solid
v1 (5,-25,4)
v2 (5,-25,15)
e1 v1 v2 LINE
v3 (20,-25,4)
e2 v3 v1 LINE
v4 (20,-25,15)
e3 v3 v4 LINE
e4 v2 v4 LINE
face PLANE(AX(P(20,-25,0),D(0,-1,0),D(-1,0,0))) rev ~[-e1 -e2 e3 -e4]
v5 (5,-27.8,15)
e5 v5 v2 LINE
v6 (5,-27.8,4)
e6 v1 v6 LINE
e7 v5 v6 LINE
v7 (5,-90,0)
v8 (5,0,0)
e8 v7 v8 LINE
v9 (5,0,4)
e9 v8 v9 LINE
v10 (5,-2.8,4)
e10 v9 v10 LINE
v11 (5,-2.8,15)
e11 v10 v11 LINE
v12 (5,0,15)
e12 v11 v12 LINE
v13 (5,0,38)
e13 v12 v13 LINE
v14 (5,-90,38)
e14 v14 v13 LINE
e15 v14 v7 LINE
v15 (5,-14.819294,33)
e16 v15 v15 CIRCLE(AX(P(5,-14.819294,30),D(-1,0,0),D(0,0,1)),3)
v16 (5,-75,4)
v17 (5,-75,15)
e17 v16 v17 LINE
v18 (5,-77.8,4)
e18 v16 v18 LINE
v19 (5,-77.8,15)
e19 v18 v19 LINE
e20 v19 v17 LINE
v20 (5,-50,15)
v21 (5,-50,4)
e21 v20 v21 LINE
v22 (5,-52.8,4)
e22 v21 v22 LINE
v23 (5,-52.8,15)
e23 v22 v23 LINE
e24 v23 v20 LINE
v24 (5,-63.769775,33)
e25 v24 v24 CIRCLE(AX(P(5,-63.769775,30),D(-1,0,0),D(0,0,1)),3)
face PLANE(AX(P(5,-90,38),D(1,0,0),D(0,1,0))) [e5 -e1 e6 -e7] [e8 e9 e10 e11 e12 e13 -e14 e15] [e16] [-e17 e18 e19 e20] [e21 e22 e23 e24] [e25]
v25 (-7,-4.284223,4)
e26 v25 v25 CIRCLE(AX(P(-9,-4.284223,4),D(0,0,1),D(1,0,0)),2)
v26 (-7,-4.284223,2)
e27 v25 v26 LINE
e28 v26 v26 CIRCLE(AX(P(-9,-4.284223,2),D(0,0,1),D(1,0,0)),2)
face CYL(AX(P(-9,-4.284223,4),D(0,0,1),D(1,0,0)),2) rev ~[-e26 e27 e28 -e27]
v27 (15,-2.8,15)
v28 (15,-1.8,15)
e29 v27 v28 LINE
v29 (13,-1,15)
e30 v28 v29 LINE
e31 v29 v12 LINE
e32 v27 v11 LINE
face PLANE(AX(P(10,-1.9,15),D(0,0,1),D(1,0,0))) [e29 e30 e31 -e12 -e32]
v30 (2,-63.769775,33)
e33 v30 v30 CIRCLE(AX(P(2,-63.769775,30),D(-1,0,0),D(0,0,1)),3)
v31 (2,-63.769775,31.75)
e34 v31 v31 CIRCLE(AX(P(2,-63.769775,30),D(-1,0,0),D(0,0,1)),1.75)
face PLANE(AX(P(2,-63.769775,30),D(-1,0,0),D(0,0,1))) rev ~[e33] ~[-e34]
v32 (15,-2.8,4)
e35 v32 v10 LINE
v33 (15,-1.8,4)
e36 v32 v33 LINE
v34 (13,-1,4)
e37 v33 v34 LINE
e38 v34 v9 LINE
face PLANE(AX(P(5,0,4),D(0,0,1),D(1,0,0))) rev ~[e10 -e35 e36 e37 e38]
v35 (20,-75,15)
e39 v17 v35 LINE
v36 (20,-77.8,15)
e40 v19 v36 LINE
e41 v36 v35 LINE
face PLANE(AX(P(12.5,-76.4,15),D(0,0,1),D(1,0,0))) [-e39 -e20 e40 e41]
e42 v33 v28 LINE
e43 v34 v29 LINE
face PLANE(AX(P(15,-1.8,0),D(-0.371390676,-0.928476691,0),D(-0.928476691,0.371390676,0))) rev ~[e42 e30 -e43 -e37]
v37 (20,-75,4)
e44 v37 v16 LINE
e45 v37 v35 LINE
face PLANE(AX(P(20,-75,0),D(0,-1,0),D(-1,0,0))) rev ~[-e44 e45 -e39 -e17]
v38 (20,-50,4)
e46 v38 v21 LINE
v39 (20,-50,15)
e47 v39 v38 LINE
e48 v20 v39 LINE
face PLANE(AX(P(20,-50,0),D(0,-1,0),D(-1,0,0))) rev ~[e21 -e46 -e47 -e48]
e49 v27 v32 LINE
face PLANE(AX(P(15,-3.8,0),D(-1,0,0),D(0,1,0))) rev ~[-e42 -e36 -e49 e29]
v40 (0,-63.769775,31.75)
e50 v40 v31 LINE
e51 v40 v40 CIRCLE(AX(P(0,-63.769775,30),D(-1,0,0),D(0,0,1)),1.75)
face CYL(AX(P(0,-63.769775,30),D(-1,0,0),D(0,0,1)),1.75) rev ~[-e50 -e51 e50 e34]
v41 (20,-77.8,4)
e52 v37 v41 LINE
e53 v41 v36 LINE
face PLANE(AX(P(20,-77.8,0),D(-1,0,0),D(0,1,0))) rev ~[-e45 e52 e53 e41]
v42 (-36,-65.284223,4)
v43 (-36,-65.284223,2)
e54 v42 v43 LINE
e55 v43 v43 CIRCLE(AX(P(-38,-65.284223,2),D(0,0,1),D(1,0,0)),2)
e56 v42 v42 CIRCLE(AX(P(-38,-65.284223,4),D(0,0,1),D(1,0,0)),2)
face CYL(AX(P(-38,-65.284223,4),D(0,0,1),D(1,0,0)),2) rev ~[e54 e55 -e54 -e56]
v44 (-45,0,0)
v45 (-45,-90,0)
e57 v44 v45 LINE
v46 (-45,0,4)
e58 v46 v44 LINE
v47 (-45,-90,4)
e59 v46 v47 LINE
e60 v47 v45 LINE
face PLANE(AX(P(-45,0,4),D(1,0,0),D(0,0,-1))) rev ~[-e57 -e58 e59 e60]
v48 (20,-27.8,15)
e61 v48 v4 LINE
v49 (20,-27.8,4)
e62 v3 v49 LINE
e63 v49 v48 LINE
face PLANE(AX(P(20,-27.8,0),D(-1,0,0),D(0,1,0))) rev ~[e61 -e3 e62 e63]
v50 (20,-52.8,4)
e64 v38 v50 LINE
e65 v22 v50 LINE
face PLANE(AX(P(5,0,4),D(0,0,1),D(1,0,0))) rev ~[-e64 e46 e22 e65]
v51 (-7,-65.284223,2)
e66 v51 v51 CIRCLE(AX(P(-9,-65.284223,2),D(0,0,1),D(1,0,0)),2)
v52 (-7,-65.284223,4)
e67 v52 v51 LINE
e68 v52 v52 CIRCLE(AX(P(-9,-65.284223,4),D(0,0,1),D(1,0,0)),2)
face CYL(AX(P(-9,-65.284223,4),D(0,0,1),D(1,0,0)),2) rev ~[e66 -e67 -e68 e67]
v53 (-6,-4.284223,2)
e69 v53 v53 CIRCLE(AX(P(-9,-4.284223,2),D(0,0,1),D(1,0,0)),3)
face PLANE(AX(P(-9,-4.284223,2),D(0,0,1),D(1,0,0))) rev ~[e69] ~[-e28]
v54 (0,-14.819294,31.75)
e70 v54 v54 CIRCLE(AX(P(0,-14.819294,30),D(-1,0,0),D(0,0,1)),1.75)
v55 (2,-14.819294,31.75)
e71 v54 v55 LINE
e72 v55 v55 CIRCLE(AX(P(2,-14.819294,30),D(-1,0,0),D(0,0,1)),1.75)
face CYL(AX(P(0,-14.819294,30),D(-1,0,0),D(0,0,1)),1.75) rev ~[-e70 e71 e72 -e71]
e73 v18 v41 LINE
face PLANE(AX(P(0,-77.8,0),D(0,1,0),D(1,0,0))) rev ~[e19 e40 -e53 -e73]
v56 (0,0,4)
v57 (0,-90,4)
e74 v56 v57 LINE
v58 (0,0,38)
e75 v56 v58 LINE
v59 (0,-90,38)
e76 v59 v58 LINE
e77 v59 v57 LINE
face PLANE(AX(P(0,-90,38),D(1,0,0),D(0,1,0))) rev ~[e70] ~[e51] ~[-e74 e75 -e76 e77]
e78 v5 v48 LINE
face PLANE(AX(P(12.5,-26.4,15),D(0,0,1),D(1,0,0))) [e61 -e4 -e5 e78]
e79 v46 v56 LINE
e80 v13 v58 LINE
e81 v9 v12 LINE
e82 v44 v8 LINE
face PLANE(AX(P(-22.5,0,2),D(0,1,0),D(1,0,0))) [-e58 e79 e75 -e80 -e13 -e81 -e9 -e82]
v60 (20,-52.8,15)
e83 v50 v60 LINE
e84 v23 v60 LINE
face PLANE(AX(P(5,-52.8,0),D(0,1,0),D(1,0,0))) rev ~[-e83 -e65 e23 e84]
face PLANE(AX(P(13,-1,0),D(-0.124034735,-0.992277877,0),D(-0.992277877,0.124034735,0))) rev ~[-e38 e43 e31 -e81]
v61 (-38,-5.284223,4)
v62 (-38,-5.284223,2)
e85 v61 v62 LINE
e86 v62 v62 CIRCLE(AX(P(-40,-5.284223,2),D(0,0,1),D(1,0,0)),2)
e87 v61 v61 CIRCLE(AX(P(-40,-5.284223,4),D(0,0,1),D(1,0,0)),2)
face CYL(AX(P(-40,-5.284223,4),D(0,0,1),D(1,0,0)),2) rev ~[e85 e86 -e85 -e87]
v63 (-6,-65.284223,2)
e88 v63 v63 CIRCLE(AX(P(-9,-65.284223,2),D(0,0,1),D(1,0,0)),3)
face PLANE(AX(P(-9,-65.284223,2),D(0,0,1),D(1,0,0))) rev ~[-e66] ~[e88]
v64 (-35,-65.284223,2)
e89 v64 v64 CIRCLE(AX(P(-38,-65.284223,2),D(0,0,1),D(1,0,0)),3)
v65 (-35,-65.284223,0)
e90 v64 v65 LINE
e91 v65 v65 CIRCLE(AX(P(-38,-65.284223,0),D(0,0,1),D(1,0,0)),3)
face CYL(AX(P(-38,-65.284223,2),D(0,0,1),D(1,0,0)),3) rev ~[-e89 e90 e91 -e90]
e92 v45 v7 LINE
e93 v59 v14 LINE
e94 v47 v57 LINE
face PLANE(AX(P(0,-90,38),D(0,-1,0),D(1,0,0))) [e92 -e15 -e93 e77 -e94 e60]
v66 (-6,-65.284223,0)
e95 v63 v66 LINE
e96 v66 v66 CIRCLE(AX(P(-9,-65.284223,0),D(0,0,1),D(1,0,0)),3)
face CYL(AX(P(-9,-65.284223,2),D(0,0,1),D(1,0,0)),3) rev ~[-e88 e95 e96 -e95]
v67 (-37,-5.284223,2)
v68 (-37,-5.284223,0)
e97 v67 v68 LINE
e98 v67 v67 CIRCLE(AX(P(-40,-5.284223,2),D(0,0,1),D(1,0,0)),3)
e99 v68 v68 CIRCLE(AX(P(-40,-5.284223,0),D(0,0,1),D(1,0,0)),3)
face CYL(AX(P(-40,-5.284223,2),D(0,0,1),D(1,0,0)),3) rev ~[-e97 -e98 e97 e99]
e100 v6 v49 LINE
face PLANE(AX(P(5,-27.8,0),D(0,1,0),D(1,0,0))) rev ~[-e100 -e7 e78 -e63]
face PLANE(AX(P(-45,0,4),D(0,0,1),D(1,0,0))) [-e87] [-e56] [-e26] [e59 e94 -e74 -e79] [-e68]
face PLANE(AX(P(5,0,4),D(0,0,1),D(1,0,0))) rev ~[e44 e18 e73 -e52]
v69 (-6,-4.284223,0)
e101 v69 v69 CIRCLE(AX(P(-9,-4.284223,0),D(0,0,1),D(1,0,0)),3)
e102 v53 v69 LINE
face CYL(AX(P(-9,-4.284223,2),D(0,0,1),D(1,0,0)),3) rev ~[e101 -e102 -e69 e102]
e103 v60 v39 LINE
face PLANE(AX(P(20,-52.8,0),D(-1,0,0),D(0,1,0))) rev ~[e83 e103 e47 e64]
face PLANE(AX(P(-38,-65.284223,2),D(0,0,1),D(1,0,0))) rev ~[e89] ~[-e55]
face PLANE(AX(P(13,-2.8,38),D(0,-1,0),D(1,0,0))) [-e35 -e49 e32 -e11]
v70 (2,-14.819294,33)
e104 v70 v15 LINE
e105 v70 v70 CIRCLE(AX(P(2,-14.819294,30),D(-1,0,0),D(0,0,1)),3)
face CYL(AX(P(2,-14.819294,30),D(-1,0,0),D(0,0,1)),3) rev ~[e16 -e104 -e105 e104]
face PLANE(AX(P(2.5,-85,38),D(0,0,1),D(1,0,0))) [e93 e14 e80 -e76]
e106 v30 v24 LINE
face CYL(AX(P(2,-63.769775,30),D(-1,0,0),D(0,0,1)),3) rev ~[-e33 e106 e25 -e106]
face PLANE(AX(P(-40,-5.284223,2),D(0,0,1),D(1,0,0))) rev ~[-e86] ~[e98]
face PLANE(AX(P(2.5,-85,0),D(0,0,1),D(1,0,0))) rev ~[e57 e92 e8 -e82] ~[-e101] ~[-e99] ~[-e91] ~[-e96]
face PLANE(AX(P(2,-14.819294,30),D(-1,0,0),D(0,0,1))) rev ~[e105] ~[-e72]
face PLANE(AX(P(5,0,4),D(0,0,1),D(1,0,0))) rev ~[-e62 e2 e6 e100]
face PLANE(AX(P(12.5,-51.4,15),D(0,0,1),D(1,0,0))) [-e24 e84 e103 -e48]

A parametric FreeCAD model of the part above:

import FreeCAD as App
import Part
import Sketcher
Q = App.Units.Quantity

doc = App.newDocument("Part")
body = doc.addObject("PartDesign::Body", "Body")

sketch1 = body.newObject("Sketcher::SketchObject", "Sketch")
sketch1.AttachmentSupport = (doc.getObject("XY_Plane"), [""])
sketch1.MapMode = "FlatFace"
sketch1.addGeometry([
    Part.LineSegment(App.Vector(15, -3.8, 0), App.Vector(15, -1.8, 0)),
    Part.LineSegment(App.Vector(15, -1.8, 0), App.Vector(13, -1, 0)),
    Part.LineSegment(App.Vector(13, -1, 0), App.Vector(13, -3.8, 0)),
    Part.LineSegment(App.Vector(13, -3.8, 0), App.Vector(15, -3.8, 0)),
], False)
sketch1.addConstraint([
    Sketcher.Constraint("Coincident", 0, 2, 1, 1),
    Sketcher.Constraint("Coincident", 1, 2, 2, 1),
    Sketcher.Constraint("Coincident", 2, 2, 3, 1),
    Sketcher.Constraint("Coincident", 3, 2, 0, 1),
    Sketcher.Constraint("Vertical", 0),
    Sketcher.Constraint("Vertical", 2),
    Sketcher.Constraint("Horizontal", 3),
    Sketcher.Constraint("Equal", 3, 0),
    Sketcher.Constraint("DistanceX", 3, 1, 3, 2, Q("2 mm")),
    Sketcher.Constraint("DistanceY", 2, 2, 2, 1, Q("2.8 mm")),
    Sketcher.Constraint("DistanceX", -1, 1, 0, 2, Q("15 mm")),
    Sketcher.Constraint("DistanceY", 1, 2, -1, 1, Q("1 mm")),
])
pad1 = body.newObject("PartDesign::Pad", "Pad")
pad1.Profile = sketch1
pad1.Length = 38
body2 = doc.addObject("PartDesign::Body", "Body001")

sketch2 = body2.newObject("Sketcher::SketchObject", "Sketch001")
sketch2.AttachmentSupport = (doc.getObject("XY_Plane001"), [""])
sketch2.MapMode = "FlatFace"
sketch2.addGeometry([
    Part.LineSegment(App.Vector(5, -75, 0), App.Vector(5, -52.8, 0)),
    Part.LineSegment(App.Vector(5, -52.8, 0), App.Vector(20, -52.8, 0)),
    Part.LineSegment(App.Vector(20, -52.8, 0), App.Vector(20, -50, 0)),
    Part.LineSegment(App.Vector(20, -50, 0), App.Vector(5, -50, 0)),
    Part.LineSegment(App.Vector(5, -50, 0), App.Vector(5, -27.8, 0)),
    Part.LineSegment(App.Vector(5, -27.8, 0), App.Vector(20, -27.8, 0)),
    Part.LineSegment(App.Vector(20, -27.8, 0), App.Vector(20, -25, 0)),
    Part.LineSegment(App.Vector(20, -25, 0), App.Vector(5, -25, 0)),
    Part.LineSegment(App.Vector(5, -25, 0), App.Vector(5, 0, 0)),
    Part.LineSegment(App.Vector(5, 0, 0), App.Vector(0, 0, 0)),
    Part.LineSegment(App.Vector(0, 0, 0), App.Vector(0, -77.8, 0)),
    Part.LineSegment(App.Vector(0, -77.8, 0), App.Vector(20, -77.8, 0)),
    Part.LineSegment(App.Vector(20, -77.8, 0), App.Vector(20, -75, 0)),
    Part.LineSegment(App.Vector(20, -75, 0), App.Vector(5, -75, 0)),
], False)
sketch2.addConstraint([
    Sketcher.Constraint("Coincident", 0, 2, 1, 1),
    Sketcher.Constraint("Coincident", 1, 2, 2, 1),
    Sketcher.Constraint("Coincident", 2, 2, 3, 1),
    Sketcher.Constraint("Coincident", 3, 2, 4, 1),
    Sketcher.Constraint("Coincident", 4, 2, 5, 1),
    Sketcher.Constraint("Coincident", 5, 2, 6, 1),
    Sketcher.Constraint("Coincident", 6, 2, 7, 1),
    Sketcher.Constraint("Coincident", 7, 2, 8, 1),
    Sketcher.Constraint("Coincident", 8, 2, 9, 1),
    Sketcher.Constraint("Coincident", 9, 2, 10, 1),
    Sketcher.Constraint("Coincident", 10, 2, 11, 1),
    Sketcher.Constraint("Coincident", 11, 2, 12, 1),
    Sketcher.Constraint("Coincident", 12, 2, 13, 1),
    Sketcher.Constraint("Coincident", 13, 2, 0, 1),
    Sketcher.Constraint("Vertical", 0),
    Sketcher.Constraint("Horizontal", 1),
    Sketcher.Constraint("Vertical", 2),
    Sketcher.Constraint("Horizontal", 3),
    Sketcher.Constraint("Vertical", 4),
    Sketcher.Constraint("Horizontal", 5),
    Sketcher.Constraint("Vertical", 6),
    Sketcher.Constraint("Horizontal", 7),
    Sketcher.Constraint("Vertical", 8),
    Sketcher.Constraint("Horizontal", 9),
    Sketcher.Constraint("Vertical", 10),
    Sketcher.Constraint("Horizontal", 11),
    Sketcher.Constraint("Vertical", 12),
    Sketcher.Constraint("Horizontal", 13),
    Sketcher.Constraint("Coincident", 9, 2, -1, 1),
    Sketcher.Constraint("Vertical", 0, 2, 3, 2),
    Sketcher.Constraint("Vertical", 2, 2, 5, 2),
    Sketcher.Constraint("Vertical", 4, 2, 7, 2),
    Sketcher.Constraint("Vertical", 6, 2, 11, 2),
    Sketcher.Constraint("Equal", 0, 4),
    Sketcher.Constraint("Equal", 2, 6),
    Sketcher.Constraint("Equal", 6, 12),
    Sketcher.Constraint("DistanceX", 1, 1, 1, 2, Q("15 mm")),
    Sketcher.Constraint("DistanceX", 9, 2, 9, 1, Q("5 mm")),
    Sketcher.Constraint("DistanceY", 8, 1, 8, 2, Q("25 mm")),
    Sketcher.Constraint("DistanceY", 0, 1, 0, 2, Q("22.2 mm")),
    Sketcher.Constraint("DistanceY", 2, 1, 2, 2, Q("2.8 mm")),
])
pad2 = body2.newObject("PartDesign::Pad", "Pad001")
pad2.Profile = sketch2
pad2.Length = 38
body.AllowCompound = True
doc.recompute()

boolean = body.newObject("PartDesign::Boolean", "Boolean")
boolean.Type = "Fuse"
boolean.addObjects([body2])

sketch3 = body.newObject("Sketcher::SketchObject", "Sketch002")
sketch3.AttachmentSupport = (doc.getObject("XY_Plane"), [""])
sketch3.MapMode = "FlatFace"
sketch3.addGeometry([
    Part.LineSegment(App.Vector(13, -2.8, 0), App.Vector(13, -1, 0)),
    Part.LineSegment(App.Vector(13, -1, 0), App.Vector(5, 0, 0)),
    Part.LineSegment(App.Vector(5, 0, 0), App.Vector(5, -2.8, 0)),
    Part.LineSegment(App.Vector(5, -2.8, 0), App.Vector(13, -2.8, 0)),
], False)
sketch3.addConstraint([
    Sketcher.Constraint("Coincident", 0, 2, 1, 1),
    Sketcher.Constraint("Coincident", 1, 2, 2, 1),
    Sketcher.Constraint("Coincident", 2, 2, 3, 1),
    Sketcher.Constraint("Coincident", 3, 2, 0, 1),
    Sketcher.Constraint("Vertical", 0),
    Sketcher.Constraint("Vertical", 2),
    Sketcher.Constraint("Horizontal", 3),
    Sketcher.Constraint("PointOnObject", 1, 2, -1),
    Sketcher.Constraint("DistanceX", 3, 1, 3, 2, Q("8 mm")),
    Sketcher.Constraint("DistanceY", 0, 1, 0, 2, Q("1.8 mm")),
    Sketcher.Constraint("DistanceY", 2, 2, 2, 1, Q("2.8 mm")),
    Sketcher.Constraint("DistanceX", -1, 1, 0, 2, Q("13 mm")),
])
pad3 = body.newObject("PartDesign::Pad", "Pad002")
pad3.Profile = sketch3
pad3.Length = 38

sketch4 = body.newObject("Sketcher::SketchObject", "Sketch003")
sketch4.AttachmentSupport = (doc.getObject("XZ_Plane"), [""])
sketch4.MapMode = "FlatFace"
sketch4.addGeometry([
    Part.LineSegment(App.Vector(-45, 0, 0), App.Vector(-45, 4, 0)),
    Part.LineSegment(App.Vector(-45, 4, 0), App.Vector(0, 4, 0)),
    Part.LineSegment(App.Vector(0, 4, 0), App.Vector(0, 0, 0)),
    Part.LineSegment(App.Vector(0, 0, 0), App.Vector(-45, 0, 0)),
], False)
sketch4.addConstraint([
    Sketcher.Constraint("Coincident", 0, 2, 1, 1),
    Sketcher.Constraint("Coincident", 1, 2, 2, 1),
    Sketcher.Constraint("Coincident", 2, 2, 3, 1),
    Sketcher.Constraint("Coincident", 3, 2, 0, 1),
    Sketcher.Constraint("Vertical", 0),
    Sketcher.Constraint("Horizontal", 1),
    Sketcher.Constraint("Vertical", 2),
    Sketcher.Constraint("Horizontal", 3),
    Sketcher.Constraint("Coincident", 2, 2, -1, 1),
    Sketcher.Constraint("DistanceX", 1, 1, 1, 2, Q("45 mm")),
    Sketcher.Constraint("DistanceY", 0, 1, 0, 2, Q("4 mm")),
])
pad4 = body.newObject("PartDesign::Pad", "Pad003")
pad4.Profile = sketch4
pad4.Length = 90

sketch5 = body.newObject("Sketcher::SketchObject", "Sketch004")
sketch5.AttachmentSupport = (doc.getObject("XY_Plane"), [""])
sketch5.MapMode = "FlatFace"
sketch5.addGeometry([
    Part.LineSegment(App.Vector(0, -77.8, 0), App.Vector(0, -80, 0)),
    Part.LineSegment(App.Vector(0, -80, 0), App.Vector(5, -80, 0)),
    Part.LineSegment(App.Vector(5, -80, 0), App.Vector(5, -77.8, 0)),
    Part.LineSegment(App.Vector(5, -77.8, 0), App.Vector(0, -77.8, 0)),
], False)
sketch5.addConstraint([
    Sketcher.Constraint("Coincident", 0, 2, 1, 1),
    Sketcher.Constraint("Coincident", 1, 2, 2, 1),
    Sketcher.Constraint("Coincident", 2, 2, 3, 1),
    Sketcher.Constraint("Coincident", 3, 2, 0, 1),
    Sketcher.Constraint("Vertical", 0),
    Sketcher.Constraint("Horizontal", 1),
    Sketcher.Constraint("Vertical", 2),
    Sketcher.Constraint("Horizontal", 3),
    Sketcher.Constraint("PointOnObject", 0, 2, -2),
    Sketcher.Constraint("DistanceX", 1, 1, 1, 2, Q("5 mm")),
    Sketcher.Constraint("DistanceY", 0, 2, 0, 1, Q("2.2 mm")),
    Sketcher.Constraint("DistanceY", 0, 2, -1, 1, Q("80 mm")),
])
pad5 = body.newObject("PartDesign::Pad", "Pad004")
pad5.Profile = sketch5
pad5.Length = 38

sketch6 = body.newObject("Sketcher::SketchObject", "Sketch005")
sketch6.AttachmentSupport = (doc.getObject("YZ_Plane"), [""])
sketch6.MapMode = "FlatFace"
sketch6.addGeometry([
    Part.Circle(App.Vector(-63.769775, 30, 0), App.Vector(0, 0, 1), 1.75),
    Part.Circle(App.Vector(-14.819294, 30, 0), App.Vector(0, 0, 1), 1.75),
], False)
sketch6.addConstraint([
    Sketcher.Constraint("Equal", 0, 1),
    Sketcher.Constraint("Horizontal", 0, 3, 1, 3),
    Sketcher.Constraint("Diameter", 0, Q("3.5 mm")),
    Sketcher.Constraint("DistanceY", -1, 1, 0, 3, Q("30 mm")),
    Sketcher.Constraint("DistanceX", 0, 3, 1, 3, Q("48.95048 mm")),
    Sketcher.Constraint("DistanceX", 0, 3, -1, 1, Q("63.769775 mm")),
])
pocket1 = body.newObject("PartDesign::Pocket", "Pocket")
pocket1.Profile = sketch6
pocket1.Length = 38
pocket1.Reversed = True

sketch7 = body.newObject("Sketcher::SketchObject", "Sketch006")
sketch7.AttachmentSupport = (doc.getObject("YZ_Plane"), [""])
sketch7.MapMode = "FlatFace"
sketch7.AttachmentOffset = App.Placement(App.Vector(0, 0, 2), App.Rotation())
sketch7.addGeometry([
    Part.Circle(App.Vector(-63.769775, 30, 0), App.Vector(0, 0, 1), 3),
    Part.Circle(App.Vector(-63.769775, 30, 0), App.Vector(0, 0, 1), 1.75),
    Part.Circle(App.Vector(-14.819294, 30, 0), App.Vector(0, 0, 1), 3),
    Part.Circle(App.Vector(-14.819294, 30, 0), App.Vector(0, 0, 1), 1.75),
], False)
sketch7.addConstraint([
    Sketcher.Constraint("Coincident", 1, 3, 0, 3),
    Sketcher.Constraint("Coincident", 3, 3, 2, 3),
    Sketcher.Constraint("Equal", 0, 2),
    Sketcher.Constraint("Equal", 1, 3),
    Sketcher.Constraint("Horizontal", 1, 3, 2, 3),
    Sketcher.Constraint("Diameter", 0, Q("6 mm")),
    Sketcher.Constraint("Diameter", 1, Q("3.5 mm")),
    Sketcher.Constraint("DistanceY", -1, 1, 0, 3, Q("30 mm")),
    Sketcher.Constraint("DistanceX", 0, 3, 2, 3, Q("48.95048 mm")),
    Sketcher.Constraint("DistanceX", 0, 3, -1, 1, Q("63.769775 mm")),
])
pocket2 = body.newObject("PartDesign::Pocket", "Pocket001")
pocket2.Profile = sketch7
pocket2.Length = 38
pocket2.Reversed = True

sketch8 = body.newObject("Sketcher::SketchObject", "Sketch007")
sketch8.AttachmentSupport = (doc.getObject("XY_Plane"), [""])
sketch8.MapMode = "FlatFace"
sketch8.AttachmentOffset = App.Placement(App.Vector(0, 0, 4), App.Rotation())
sketch8.addGeometry([
    Part.Circle(App.Vector(-40, -5.284223, 0), App.Vector(0, 0, 1), 2),
    Part.Circle(App.Vector(-9, -4.284223, 0), App.Vector(0, 0, 1), 2),
    Part.Circle(App.Vector(-9, -65.284223, 0), App.Vector(0, 0, 1), 2),
    Part.Circle(App.Vector(-38, -65.284223, 0), App.Vector(0, 0, 1), 2),
], False)
sketch8.addConstraint([
    Sketcher.Constraint("Equal", 0, 1),
    Sketcher.Constraint("Equal", 1, 2),
    Sketcher.Constraint("Equal", 2, 3),
    Sketcher.Constraint("Horizontal", 2, 3, 3, 3),
    Sketcher.Constraint("Vertical", 1, 3, 2, 3),
    Sketcher.Constraint("Diameter", 0, Q("4 mm")),
    Sketcher.Constraint("DistanceX", 0, 3, -1, 1, Q("40 mm")),
    Sketcher.Constraint("DistanceX", 1, 3, -1, 1, Q("9 mm")),
    Sketcher.Constraint("DistanceX", 3, 3, -1, 1, Q("38 mm")),
    Sketcher.Constraint("DistanceY", 0, 3, 1, 3, Q("1 mm")),
    Sketcher.Constraint("DistanceY", 2, 3, 1, 3, Q("61 mm")),
    Sketcher.Constraint("DistanceY", 0, 3, -1, 1, Q("5.284223 mm")),
])
pocket3 = body.newObject("PartDesign::Pocket", "Pocket002")
pocket3.Profile = sketch8
pocket3.Length = 38

sketch9 = body.newObject("Sketcher::SketchObject", "Sketch008")
sketch9.AttachmentSupport = (doc.getObject("XY_Plane"), [""])
sketch9.MapMode = "FlatFace"
sketch9.AttachmentOffset = App.Placement(App.Vector(0, 0, 2), App.Rotation())
sketch9.addGeometry([
    Part.Circle(App.Vector(-40, -5.284223, 0), App.Vector(0, 0, 1), 3),
    Part.Circle(App.Vector(-40, -5.284223, 0), App.Vector(0, 0, 1), 2),
    Part.Circle(App.Vector(-38, -65.284223, 0), App.Vector(0, 0, 1), 3),
    Part.Circle(App.Vector(-38, -65.284223, 0), App.Vector(0, 0, 1), 2),
    Part.Circle(App.Vector(-9, -65.284223, 0), App.Vector(0, 0, 1), 3),
    Part.Circle(App.Vector(-9, -65.284223, 0), App.Vector(0, 0, 1), 2),
    Part.Circle(App.Vector(-9, -4.284223, 0), App.Vector(0, 0, 1), 3),
    Part.Circle(App.Vector(-9, -4.284223, 0), App.Vector(0, 0, 1), 2),
], False)
sketch9.addConstraint([
    Sketcher.Constraint("Coincident", 1, 3, 0, 3),
    Sketcher.Constraint("Coincident", 3, 3, 2, 3),
    Sketcher.Constraint("Coincident", 5, 3, 4, 3),
    Sketcher.Constraint("Coincident", 7, 3, 6, 3),
    Sketcher.Constraint("Equal", 0, 2),
    Sketcher.Constraint("Equal", 1, 3),
    Sketcher.Constraint("Equal", 2, 4),
    Sketcher.Constraint("Equal", 3, 5),
    Sketcher.Constraint("Equal", 4, 6),
    Sketcher.Constraint("Equal", 5, 7),
    Sketcher.Constraint("Horizontal", 3, 3, 4, 3),
    Sketcher.Constraint("Vertical", 5, 3, 6, 3),
    Sketcher.Constraint("Diameter", 0, Q("6 mm")),
    Sketcher.Constraint("Diameter", 1, Q("4 mm")),
    Sketcher.Constraint("DistanceX", 0, 3, -1, 1, Q("40 mm")),
    Sketcher.Constraint("DistanceX", 2, 3, -1, 1, Q("38 mm")),
    Sketcher.Constraint("DistanceX", 4, 3, -1, 1, Q("9 mm")),
    Sketcher.Constraint("DistanceY", 2, 3, 0, 3, Q("60 mm")),
    Sketcher.Constraint("DistanceY", 0, 3, 6, 3, Q("1 mm")),
    Sketcher.Constraint("DistanceY", 0, 3, -1, 1, Q("5.284223 mm")),
])
pocket4 = body.newObject("PartDesign::Pocket", "Pocket003")
pocket4.Profile = sketch9
pocket4.Length = 38

sketch10 = body.newObject("Sketcher::SketchObject", "Sketch009")
sketch10.AttachmentSupport = (doc.getObject("XY_Plane"), [""])
sketch10.MapMode = "FlatFace"
sketch10.AttachmentOffset = App.Placement(App.Vector(0, 0, 38), App.Rotation())
sketch10.addGeometry([
    Part.LineSegment(App.Vector(5, -25, 0), App.Vector(5, -27.8, 0)),
    Part.LineSegment(App.Vector(5, -27.8, 0), App.Vector(20, -27.8, 0)),
    Part.LineSegment(App.Vector(20, -27.8, 0), App.Vector(20, -25, 0)),
    Part.LineSegment(App.Vector(20, -25, 0), App.Vector(5, -25, 0)),
    Part.LineSegment(App.Vector(5, -50, 0), App.Vector(5, -52.8, 0)),
    Part.LineSegment(App.Vector(5, -52.8, 0), App.Vector(20, -52.8, 0)),
    Part.LineSegment(App.Vector(20, -52.8, 0), App.Vector(20, -50, 0)),
    Part.LineSegment(App.Vector(20, -50, 0), App.Vector(5, -50, 0)),
    Part.LineSegment(App.Vector(5, -75, 0), App.Vector(5, -77.8, 0)),
    Part.LineSegment(App.Vector(5, -77.8, 0), App.Vector(20, -77.8, 0)),
    Part.LineSegment(App.Vector(20, -77.8, 0), App.Vector(20, -75, 0)),
    Part.LineSegment(App.Vector(20, -75, 0), App.Vector(5, -75, 0)),
], False)
sketch10.addConstraint([
    Sketcher.Constraint("Coincident", 0, 2, 1, 1),
    Sketcher.Constraint("Coincident", 1, 2, 2, 1),
    Sketcher.Constraint("Coincident", 2, 2, 3, 1),
    Sketcher.Constraint("Coincident", 3, 2, 0, 1),
    Sketcher.Constraint("Coincident", 4, 2, 5, 1),
    Sketcher.Constraint("Coincident", 5, 2, 6, 1),
    Sketcher.Constraint("Coincident", 6, 2, 7, 1),
    Sketcher.Constraint("Coincident", 7, 2, 4, 1),
    Sketcher.Constraint("Coincident", 8, 2, 9, 1),
    Sketcher.Constraint("Coincident", 9, 2, 10, 1),
    Sketcher.Constraint("Coincident", 10, 2, 11, 1),
    Sketcher.Constraint("Coincident", 11, 2, 8, 1),
    Sketcher.Constraint("Vertical", 0),
    Sketcher.Constraint("Horizontal", 1),
    Sketcher.Constraint("Vertical", 2),
    Sketcher.Constraint("Horizontal", 3),
    Sketcher.Constraint("Vertical", 4),
    Sketcher.Constraint("Horizontal", 5),
    Sketcher.Constraint("Vertical", 6),
    Sketcher.Constraint("Horizontal", 7),
    Sketcher.Constraint("Vertical", 8),
    Sketcher.Constraint("Horizontal", 9),
    Sketcher.Constraint("Vertical", 10),
    Sketcher.Constraint("Horizontal", 11),
    Sketcher.Constraint("Vertical", 3, 2, 4, 2),
    Sketcher.Constraint("Vertical", 2, 2, 5, 2),
    Sketcher.Constraint("Vertical", 7, 2, 8, 2),
    Sketcher.Constraint("Vertical", 6, 2, 9, 2),
    Sketcher.Constraint("Equal", 2, 4),
    Sketcher.Constraint("Equal", 6, 8),
    Sketcher.Constraint("DistanceX", 1, 1, 1, 2, Q("15 mm")),
    Sketcher.Constraint("DistanceY", 0, 2, 0, 1, Q("2.8 mm")),
    Sketcher.Constraint("DistanceX", -1, 1, 0, 2, Q("5 mm")),
    Sketcher.Constraint("DistanceY", 2, 2, -1, 1, Q("25 mm")),
    Sketcher.Constraint("DistanceY", 6, 2, -1, 1, Q("50 mm")),
    Sketcher.Constraint("DistanceY", 10, 2, -1, 1, Q("75 mm")),
])
pad6 = body.newObject("PartDesign::Pad", "Pad005")
pad6.Profile = sketch10
pad6.Length = 23
pad6.Reversed = True

sketch11 = body.newObject("Sketcher::SketchObject", "Sketch010")
sketch11.AttachmentSupport = (doc.getObject("XY_Plane"), [""])
sketch11.MapMode = "FlatFace"
sketch11.AttachmentOffset = App.Placement(App.Vector(0, 0, 38), App.Rotation())
sketch11.addGeometry([
    Part.LineSegment(App.Vector(13, -2.8, 0), App.Vector(13, -3.8, 0)),
    Part.LineSegment(App.Vector(13, -3.8, 0), App.Vector(15, -3.8, 0)),
    Part.LineSegment(App.Vector(15, -3.8, 0), App.Vector(15, -2.8, 0)),
    Part.LineSegment(App.Vector(15, -2.8, 0), App.Vector(13, -2.8, 0)),
], False)
sketch11.addConstraint([
    Sketcher.Constraint("Coincident", 0, 2, 1, 1),
    Sketcher.Constraint("Coincident", 1, 2, 2, 1),
    Sketcher.Constraint("Coincident", 2, 2, 3, 1),
    Sketcher.Constraint("Coincident", 3, 2, 0, 1),
    Sketcher.Constraint("Vertical", 0),
    Sketcher.Constraint("Horizontal", 1),
    Sketcher.Constraint("Vertical", 2),
    Sketcher.Constraint("Horizontal", 3),
    Sketcher.Constraint("DistanceX", 1, 1, 1, 2, Q("2 mm")),
    Sketcher.Constraint("DistanceY", 0, 2, 0, 1, Q("1 mm")),
    Sketcher.Constraint("DistanceX", -1, 1, 0, 2, Q("13 mm")),
    Sketcher.Constraint("DistanceY", 0, 2, -1, 1, Q("3.8 mm")),
])
pocket5 = body.newObject("PartDesign::Pocket", "Pocket004")
pocket5.Profile = sketch11
pocket5.Length = 40

sketch12 = body.newObject("Sketcher::SketchObject", "Sketch011")
sketch12.AttachmentSupport = (doc.getObject("XY_Plane"), [""])
sketch12.MapMode = "FlatFace"
sketch12.AttachmentOffset = App.Placement(App.Vector(0, 0, 38), App.Rotation())
sketch12.addGeometry([
    Part.LineSegment(App.Vector(5, -75, 0), App.Vector(5, -77.8, 0)),
    Part.LineSegment(App.Vector(5, -77.8, 0), App.Vector(20, -77.8, 0)),
    Part.LineSegment(App.Vector(20, -77.8, 0), App.Vector(20, -75, 0)),
    Part.LineSegment(App.Vector(20, -75, 0), App.Vector(5, -75, 0)),
    Part.LineSegment(App.Vector(5, -50, 0), App.Vector(5, -52.8, 0)),
    Part.LineSegment(App.Vector(5, -52.8, 0), App.Vector(20, -52.8, 0)),
    Part.LineSegment(App.Vector(20, -52.8, 0), App.Vector(20, -50, 0)),
    Part.LineSegment(App.Vector(20, -50, 0), App.Vector(5, -50, 0)),
    Part.LineSegment(App.Vector(5, -25, 0), App.Vector(5, -27.8, 0)),
    Part.LineSegment(App.Vector(5, -27.8, 0), App.Vector(20, -27.8, 0)),
    Part.LineSegment(App.Vector(20, -27.8, 0), App.Vector(20, -25, 0)),
    Part.LineSegment(App.Vector(20, -25, 0), App.Vector(5, -25, 0)),
    Part.LineSegment(App.Vector(5, 0, 0), App.Vector(5, -3.8, 0)),
    Part.LineSegment(App.Vector(5, -3.8, 0), App.Vector(15, -3.8, 0)),
    Part.LineSegment(App.Vector(15, -3.8, 0), App.Vector(15, 0, 0)),
    Part.LineSegment(App.Vector(15, 0, 0), App.Vector(5, 0, 0)),
], False)
sketch12.addConstraint([
    Sketcher.Constraint("Coincident", 0, 2, 1, 1),
    Sketcher.Constraint("Coincident", 1, 2, 2, 1),
    Sketcher.Constraint("Coincident", 2, 2, 3, 1),
    Sketcher.Constraint("Coincident", 3, 2, 0, 1),
    Sketcher.Constraint("Coincident", 4, 2, 5, 1),
    Sketcher.Constraint("Coincident", 5, 2, 6, 1),
    Sketcher.Constraint("Coincident", 6, 2, 7, 1),
    Sketcher.Constraint("Coincident", 7, 2, 4, 1),
    Sketcher.Constraint("Coincident", 8, 2, 9, 1),
    Sketcher.Constraint("Coincident", 9, 2, 10, 1),
    Sketcher.Constraint("Coincident", 10, 2, 11, 1),
    Sketcher.Constraint("Coincident", 11, 2, 8, 1),
    Sketcher.Constraint("Coincident", 12, 2, 13, 1),
    Sketcher.Constraint("Coincident", 13, 2, 14, 1),
    Sketcher.Constraint("Coincident", 14, 2, 15, 1),
    Sketcher.Constraint("Coincident", 15, 2, 12, 1),
    Sketcher.Constraint("Vertical", 0),
    Sketcher.Constraint("Horizontal", 1),
    Sketcher.Constraint("Vertical", 2),
    Sketcher.Constraint("Horizontal", 3),
    Sketcher.Constraint("Vertical", 4),
    Sketcher.Constraint("Horizontal", 5),
    Sketcher.Constraint("Vertical", 6),
    Sketcher.Constraint("Horizontal", 7),
    Sketcher.Constraint("Vertical", 8),
    Sketcher.Constraint("Horizontal", 9),
    Sketcher.Constraint("Vertical", 10),
    Sketcher.Constraint("Horizontal", 11),
    Sketcher.Constraint("Vertical", 12),
    Sketcher.Constraint("Horizontal", 13),
    Sketcher.Constraint("Vertical", 14),
    Sketcher.Constraint("Horizontal", 15),
    Sketcher.Constraint("PointOnObject", 14, 2, -1),
    Sketcher.Constraint("Vertical", 3, 2, 4, 2),
    Sketcher.Constraint("Vertical", 2, 2, 5, 2),
    Sketcher.Constraint("Vertical", 7, 2, 8, 2),
    Sketcher.Constraint("Vertical", 6, 2, 9, 2),
    Sketcher.Constraint("Vertical", 11, 2, 12, 2),
    Sketcher.Constraint("Equal", 2, 4),
    Sketcher.Constraint("Equal", 6, 8),
    Sketcher.Constraint("DistanceX", 1, 1, 1, 2, Q("15 mm")),
    Sketcher.Constraint("DistanceX", 13, 1, 13, 2, Q("10 mm")),
    Sketcher.Constraint("DistanceY", 0, 2, 0, 1, Q("2.8 mm")),
    Sketcher.Constraint("DistanceY", 12, 2, 12, 1, Q("3.8 mm")),
    Sketcher.Constraint("DistanceX", -1, 1, 0, 2, Q("5 mm")),
    Sketcher.Constraint("DistanceY", 2, 2, -1, 1, Q("75 mm")),
    Sketcher.Constraint("DistanceY", 6, 2, -1, 1, Q("50 mm")),
    Sketcher.Constraint("DistanceY", 10, 2, -1, 1, Q("25 mm")),
])
pocket6 = body.newObject("PartDesign::Pocket", "Pocket005")
pocket6.Profile = sketch12
pocket6.Length = 23

sketch13 = body.newObject("Sketcher::SketchObject", "Sketch012")
sketch13.AttachmentSupport = (doc.getObject("XZ_Plane"), [""])
sketch13.MapMode = "FlatFace"
sketch13.addGeometry([
    Part.LineSegment(App.Vector(5, 0, 0), App.Vector(5, 4, 0)),
    Part.LineSegment(App.Vector(5, 4, 0), App.Vector(20, 4, 0)),
    Part.LineSegment(App.Vector(20, 4, 0), App.Vector(20, 0, 0)),
    Part.LineSegment(App.Vector(20, 0, 0), App.Vector(5, 0, 0)),
], False)
sketch13.addConstraint([
    Sketcher.Constraint("Coincident", 0, 2, 1, 1),
    Sketcher.Constraint("Coincident", 1, 2, 2, 1),
    Sketcher.Constraint("Coincident", 2, 2, 3, 1),
    Sketcher.Constraint("Coincident", 3, 2, 0, 1),
    Sketcher.Constraint("Vertical", 0),
    Sketcher.Constraint("Horizontal", 1),
    Sketcher.Constraint("Vertical", 2),
    Sketcher.Constraint("Horizontal", 3),
    Sketcher.Constraint("PointOnObject", 2, 2, -1),
    Sketcher.Constraint("DistanceX", 1, 1, 1, 2, Q("15 mm")),
    Sketcher.Constraint("DistanceY", 0, 1, 0, 2, Q("4 mm")),
    Sketcher.Constraint("DistanceX", -1, 1, 0, 2, Q("5 mm")),
])
pocket7 = body.newObject("PartDesign::Pocket", "Pocket006")
pocket7.Profile = sketch13
pocket7.Length = 89
pocket7.Reversed = True

sketch14 = body.newObject("Sketcher::SketchObject", "Sketch013")
sketch14.AttachmentSupport = (doc.getObject("XY_Plane"), [""])
sketch14.MapMode = "FlatFace"
sketch14.AttachmentOffset = App.Placement(App.Vector(0, 0, 38), App.Rotation())
sketch14.addGeometry([
    Part.LineSegment(App.Vector(0, -80, 0), App.Vector(0, -90, 0)),
    Part.LineSegment(App.Vector(0, -90, 0), App.Vector(5, -90, 0)),
    Part.LineSegment(App.Vector(5, -90, 0), App.Vector(5, -80, 0)),
    Part.LineSegment(App.Vector(5, -80, 0), App.Vector(0, -80, 0)),
], False)
sketch14.addConstraint([
    Sketcher.Constraint("Coincident", 0, 2, 1, 1),
    Sketcher.Constraint("Coincident", 1, 2, 2, 1),
    Sketcher.Constraint("Coincident", 2, 2, 3, 1),
    Sketcher.Constraint("Coincident", 3, 2, 0, 1),
    Sketcher.Constraint("Vertical", 0),
    Sketcher.Constraint("Horizontal", 1),
    Sketcher.Constraint("Vertical", 2),
    Sketcher.Constraint("Horizontal", 3),
    Sketcher.Constraint("PointOnObject", 0, 2, -2),
    Sketcher.Constraint("DistanceX", 1, 1, 1, 2, Q("5 mm")),
    Sketcher.Constraint("DistanceY", 0, 2, 0, 1, Q("10 mm")),
    Sketcher.Constraint("DistanceY", 0, 2, -1, 1, Q("90 mm")),
])
pad7 = body.newObject("PartDesign::Pad", "Pad006")
pad7.Profile = sketch14
pad7.Length = 38
pad7.Reversed = True

doc.recompute()
